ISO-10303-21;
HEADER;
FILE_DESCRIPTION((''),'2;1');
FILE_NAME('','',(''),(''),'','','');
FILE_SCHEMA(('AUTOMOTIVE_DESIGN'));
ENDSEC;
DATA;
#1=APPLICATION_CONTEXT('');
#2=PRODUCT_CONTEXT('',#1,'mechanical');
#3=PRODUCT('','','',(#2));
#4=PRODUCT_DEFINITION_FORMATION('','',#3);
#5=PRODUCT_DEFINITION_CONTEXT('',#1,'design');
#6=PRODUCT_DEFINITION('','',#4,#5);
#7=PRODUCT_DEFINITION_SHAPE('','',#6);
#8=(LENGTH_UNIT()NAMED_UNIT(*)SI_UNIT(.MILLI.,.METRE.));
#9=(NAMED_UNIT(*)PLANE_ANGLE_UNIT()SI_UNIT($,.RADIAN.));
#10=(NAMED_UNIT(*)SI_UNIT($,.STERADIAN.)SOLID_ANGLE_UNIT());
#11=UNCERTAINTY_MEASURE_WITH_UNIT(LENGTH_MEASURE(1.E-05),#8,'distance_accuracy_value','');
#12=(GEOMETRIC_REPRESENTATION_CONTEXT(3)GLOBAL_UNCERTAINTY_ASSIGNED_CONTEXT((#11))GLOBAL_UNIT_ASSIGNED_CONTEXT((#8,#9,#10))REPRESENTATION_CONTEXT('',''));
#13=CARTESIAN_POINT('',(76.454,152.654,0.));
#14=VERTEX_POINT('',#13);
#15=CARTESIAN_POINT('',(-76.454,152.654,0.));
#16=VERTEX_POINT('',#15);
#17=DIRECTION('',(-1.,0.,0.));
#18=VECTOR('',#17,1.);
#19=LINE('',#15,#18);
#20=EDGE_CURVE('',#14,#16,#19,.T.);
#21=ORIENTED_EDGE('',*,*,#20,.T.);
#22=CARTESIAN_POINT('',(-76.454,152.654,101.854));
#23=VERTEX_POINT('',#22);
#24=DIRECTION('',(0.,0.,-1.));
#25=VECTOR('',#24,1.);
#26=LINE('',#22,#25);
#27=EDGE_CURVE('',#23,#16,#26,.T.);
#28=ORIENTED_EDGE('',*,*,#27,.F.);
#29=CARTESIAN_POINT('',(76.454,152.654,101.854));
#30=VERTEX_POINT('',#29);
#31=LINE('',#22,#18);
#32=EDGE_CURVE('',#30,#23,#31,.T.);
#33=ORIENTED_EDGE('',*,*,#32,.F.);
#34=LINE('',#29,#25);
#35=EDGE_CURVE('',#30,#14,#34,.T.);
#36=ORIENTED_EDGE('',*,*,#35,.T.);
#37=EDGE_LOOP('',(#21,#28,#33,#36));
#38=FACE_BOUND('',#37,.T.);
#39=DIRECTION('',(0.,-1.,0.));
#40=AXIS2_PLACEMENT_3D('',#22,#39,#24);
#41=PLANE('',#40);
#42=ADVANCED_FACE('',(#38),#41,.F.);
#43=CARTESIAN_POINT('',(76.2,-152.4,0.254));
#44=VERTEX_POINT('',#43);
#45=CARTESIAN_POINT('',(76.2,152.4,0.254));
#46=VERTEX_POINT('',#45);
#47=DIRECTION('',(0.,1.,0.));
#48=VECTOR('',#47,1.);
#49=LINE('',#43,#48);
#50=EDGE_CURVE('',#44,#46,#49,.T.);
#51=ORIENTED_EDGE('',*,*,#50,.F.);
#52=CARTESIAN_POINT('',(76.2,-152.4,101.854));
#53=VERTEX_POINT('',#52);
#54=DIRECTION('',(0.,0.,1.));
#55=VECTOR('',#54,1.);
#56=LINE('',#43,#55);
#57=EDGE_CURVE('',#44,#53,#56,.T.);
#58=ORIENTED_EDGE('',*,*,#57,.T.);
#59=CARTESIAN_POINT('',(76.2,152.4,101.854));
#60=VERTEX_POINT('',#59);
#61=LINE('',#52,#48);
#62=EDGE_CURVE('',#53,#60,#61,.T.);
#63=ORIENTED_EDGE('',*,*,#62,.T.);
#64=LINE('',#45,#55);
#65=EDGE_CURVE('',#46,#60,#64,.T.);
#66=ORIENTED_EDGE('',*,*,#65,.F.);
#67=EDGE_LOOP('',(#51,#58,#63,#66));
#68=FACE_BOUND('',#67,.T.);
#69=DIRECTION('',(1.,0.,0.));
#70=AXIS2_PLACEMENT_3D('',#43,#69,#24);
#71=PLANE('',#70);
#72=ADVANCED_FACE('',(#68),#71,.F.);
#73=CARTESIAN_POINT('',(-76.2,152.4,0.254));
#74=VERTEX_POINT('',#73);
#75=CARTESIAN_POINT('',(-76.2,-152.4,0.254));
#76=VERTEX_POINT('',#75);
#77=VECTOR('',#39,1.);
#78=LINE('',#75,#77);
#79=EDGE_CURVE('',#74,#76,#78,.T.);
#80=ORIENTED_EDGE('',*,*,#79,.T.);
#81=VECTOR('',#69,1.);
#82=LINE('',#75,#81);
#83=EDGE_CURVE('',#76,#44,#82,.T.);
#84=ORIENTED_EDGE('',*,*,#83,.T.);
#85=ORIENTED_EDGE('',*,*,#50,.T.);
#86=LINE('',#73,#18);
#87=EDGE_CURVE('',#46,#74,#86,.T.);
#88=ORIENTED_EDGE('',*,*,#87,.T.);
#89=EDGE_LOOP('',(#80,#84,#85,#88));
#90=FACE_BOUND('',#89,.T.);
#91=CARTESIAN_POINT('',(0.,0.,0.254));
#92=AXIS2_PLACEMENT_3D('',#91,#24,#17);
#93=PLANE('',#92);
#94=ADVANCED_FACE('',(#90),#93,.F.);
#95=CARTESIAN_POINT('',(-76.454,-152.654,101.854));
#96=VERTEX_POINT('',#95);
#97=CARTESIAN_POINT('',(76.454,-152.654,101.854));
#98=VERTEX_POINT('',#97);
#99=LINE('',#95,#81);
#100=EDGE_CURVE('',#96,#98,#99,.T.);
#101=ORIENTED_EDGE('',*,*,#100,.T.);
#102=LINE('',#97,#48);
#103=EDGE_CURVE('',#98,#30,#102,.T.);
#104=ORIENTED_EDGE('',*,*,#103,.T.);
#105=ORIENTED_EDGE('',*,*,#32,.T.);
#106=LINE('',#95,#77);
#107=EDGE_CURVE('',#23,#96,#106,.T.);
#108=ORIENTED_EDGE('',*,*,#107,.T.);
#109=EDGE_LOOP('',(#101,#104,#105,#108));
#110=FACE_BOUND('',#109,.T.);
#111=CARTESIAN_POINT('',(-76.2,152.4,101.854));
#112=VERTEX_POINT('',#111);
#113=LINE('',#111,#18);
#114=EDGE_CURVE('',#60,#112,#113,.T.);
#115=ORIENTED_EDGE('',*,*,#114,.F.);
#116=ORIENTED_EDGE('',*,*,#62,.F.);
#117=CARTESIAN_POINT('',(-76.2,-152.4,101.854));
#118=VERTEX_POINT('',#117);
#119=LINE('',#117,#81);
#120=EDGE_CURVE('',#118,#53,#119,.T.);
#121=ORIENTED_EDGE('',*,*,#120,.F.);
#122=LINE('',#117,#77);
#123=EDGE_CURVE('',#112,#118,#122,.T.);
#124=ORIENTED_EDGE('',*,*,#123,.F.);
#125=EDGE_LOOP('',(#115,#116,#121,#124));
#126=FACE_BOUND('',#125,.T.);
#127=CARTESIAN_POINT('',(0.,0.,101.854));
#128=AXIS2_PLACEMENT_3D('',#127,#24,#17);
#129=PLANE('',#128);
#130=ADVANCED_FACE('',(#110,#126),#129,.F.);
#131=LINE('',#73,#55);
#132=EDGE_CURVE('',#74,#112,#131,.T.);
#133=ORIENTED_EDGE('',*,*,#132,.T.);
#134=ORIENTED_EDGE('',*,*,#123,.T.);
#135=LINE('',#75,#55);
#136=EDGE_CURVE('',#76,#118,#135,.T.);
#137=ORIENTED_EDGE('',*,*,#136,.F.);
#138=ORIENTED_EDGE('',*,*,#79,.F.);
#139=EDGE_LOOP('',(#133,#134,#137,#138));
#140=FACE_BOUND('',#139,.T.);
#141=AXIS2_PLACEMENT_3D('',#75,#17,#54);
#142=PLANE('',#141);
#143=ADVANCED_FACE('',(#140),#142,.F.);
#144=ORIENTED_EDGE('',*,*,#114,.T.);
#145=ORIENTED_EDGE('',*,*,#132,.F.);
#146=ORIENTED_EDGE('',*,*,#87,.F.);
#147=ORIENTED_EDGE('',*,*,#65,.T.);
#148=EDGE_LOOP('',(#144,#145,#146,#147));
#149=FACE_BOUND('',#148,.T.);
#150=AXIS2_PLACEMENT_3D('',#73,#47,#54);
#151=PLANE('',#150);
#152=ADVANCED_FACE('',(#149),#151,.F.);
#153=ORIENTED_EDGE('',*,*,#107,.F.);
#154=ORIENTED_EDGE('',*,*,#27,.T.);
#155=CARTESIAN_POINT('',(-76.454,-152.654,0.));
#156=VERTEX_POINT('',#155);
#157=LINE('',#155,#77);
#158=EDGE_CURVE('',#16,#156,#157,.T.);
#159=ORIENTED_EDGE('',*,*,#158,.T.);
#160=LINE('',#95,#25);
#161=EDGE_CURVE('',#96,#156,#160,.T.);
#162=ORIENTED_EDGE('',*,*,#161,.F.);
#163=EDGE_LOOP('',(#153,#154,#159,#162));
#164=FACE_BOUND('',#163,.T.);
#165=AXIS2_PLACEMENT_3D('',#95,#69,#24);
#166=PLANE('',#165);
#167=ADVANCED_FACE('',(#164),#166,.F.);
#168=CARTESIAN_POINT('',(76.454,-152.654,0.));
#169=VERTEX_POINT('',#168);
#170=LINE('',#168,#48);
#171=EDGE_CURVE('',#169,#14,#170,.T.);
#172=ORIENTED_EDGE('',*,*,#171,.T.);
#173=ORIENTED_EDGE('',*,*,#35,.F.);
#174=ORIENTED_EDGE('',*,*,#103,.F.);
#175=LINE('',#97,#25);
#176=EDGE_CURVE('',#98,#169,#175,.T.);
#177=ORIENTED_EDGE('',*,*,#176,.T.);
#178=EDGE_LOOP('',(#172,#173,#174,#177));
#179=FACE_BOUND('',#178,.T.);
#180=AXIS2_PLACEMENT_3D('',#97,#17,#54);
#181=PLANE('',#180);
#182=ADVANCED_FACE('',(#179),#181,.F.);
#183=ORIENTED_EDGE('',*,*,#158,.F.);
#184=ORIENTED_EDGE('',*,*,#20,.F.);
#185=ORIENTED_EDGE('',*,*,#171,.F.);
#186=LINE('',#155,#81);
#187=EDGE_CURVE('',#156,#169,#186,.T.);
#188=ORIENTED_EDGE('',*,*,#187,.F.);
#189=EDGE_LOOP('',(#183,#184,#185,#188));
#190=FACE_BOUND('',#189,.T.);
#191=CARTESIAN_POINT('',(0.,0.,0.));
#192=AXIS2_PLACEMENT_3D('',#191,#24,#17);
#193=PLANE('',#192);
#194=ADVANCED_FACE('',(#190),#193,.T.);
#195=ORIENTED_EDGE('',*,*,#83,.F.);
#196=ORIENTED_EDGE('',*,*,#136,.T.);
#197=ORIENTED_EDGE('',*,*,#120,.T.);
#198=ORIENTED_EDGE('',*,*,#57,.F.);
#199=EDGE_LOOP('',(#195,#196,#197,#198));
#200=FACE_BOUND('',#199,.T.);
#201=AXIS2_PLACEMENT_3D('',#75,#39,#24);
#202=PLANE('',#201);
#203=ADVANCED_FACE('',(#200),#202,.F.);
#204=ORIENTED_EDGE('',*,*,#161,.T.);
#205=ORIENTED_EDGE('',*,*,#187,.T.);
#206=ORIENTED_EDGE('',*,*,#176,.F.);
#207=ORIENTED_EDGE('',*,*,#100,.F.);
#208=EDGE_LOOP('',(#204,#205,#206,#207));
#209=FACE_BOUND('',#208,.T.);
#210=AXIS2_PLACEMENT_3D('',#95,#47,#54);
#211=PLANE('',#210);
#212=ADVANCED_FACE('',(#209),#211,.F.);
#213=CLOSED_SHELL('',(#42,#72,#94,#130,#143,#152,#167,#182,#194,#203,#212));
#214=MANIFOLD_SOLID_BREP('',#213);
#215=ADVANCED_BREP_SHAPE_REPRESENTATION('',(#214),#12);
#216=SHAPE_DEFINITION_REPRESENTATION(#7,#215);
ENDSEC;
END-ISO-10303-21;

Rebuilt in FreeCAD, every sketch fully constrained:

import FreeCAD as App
import Part
import Sketcher
Q = App.Units.Quantity


def add_polygon(sketch, points):
    """Adds a closed chain of lines whose ends are joined by coincident constraints."""
    first, n = sketch.GeometryCount, len(points)
    for a, b in zip(points, points[1:] + points[:1]):
        sketch.addGeometry(Part.LineSegment(App.Vector(*a, 0), App.Vector(*b, 0)), False)
    for i in range(n):
        sketch.addConstraint(Sketcher.Constraint("Coincident", first + i, 2, first + (i + 1) % n, 1))

doc = App.newDocument("Part")
body = doc.addObject("PartDesign::Body", "Body")

# Sketch on XY plane
sketch1 = body.newObject("Sketcher::SketchObject", "Sketch")
sketch1.AttachmentSupport = (doc.getObject("XY_Plane"), [""])
sketch1.MapMode = "FlatFace"
add_polygon(sketch1, [(-76.454, 152.654), (-76.454, -152.654), (76.454, -152.654), (76.454, 152.654)])  # lines 0-3
sketch1.addConstraint([
    Sketcher.Constraint("Vertical", 0),
    Sketcher.Constraint("Horizontal", 1),
    Sketcher.Constraint("Vertical", 2),
    Sketcher.Constraint("Horizontal", 3),
    Sketcher.Constraint("Symmetric", 0, 2, 2, 2, -1, 1),
    Sketcher.Constraint("DistanceX", 1, 1, 1, 2, Q("6.02 in")),
    Sketcher.Constraint("DistanceY", 0, 2, 0, 1, Q("12.02 in")),
])
pad1 = body.newObject("PartDesign::Pad", "Pad")
pad1.Profile = sketch1
pad1.Length = Q("4.01 in")

# Sketch on XY plane
sketch2 = body.newObject("Sketcher::SketchObject", "Sketch001")
sketch2.AttachmentSupport = (doc.getObject("XY_Plane"), [""])
sketch2.MapMode = "FlatFace"
sketch2.AttachmentOffset = App.Placement(App.Vector(0, 0, 4.01 * 25.4), App.Rotation())
add_polygon(sketch2, [(-76.2, 152.4), (-76.2, -152.4), (76.2, -152.4), (76.2, 152.4)])  # lines 0-3
sketch2.addConstraint([
    Sketcher.Constraint("Vertical", 0),
    Sketcher.Constraint("Horizontal", 1),
    Sketcher.Constraint("Vertical", 2),
    Sketcher.Constraint("Horizontal", 3),
    Sketcher.Constraint("Symmetric", 0, 2, 2, 2, -1, 1),
    Sketcher.Constraint("DistanceX", 1, 1, 1, 2, Q("6 in")),
    Sketcher.Constraint("DistanceY", 0, 2, 0, 1, Q("12 in")),
])
pocket1 = body.newObject("PartDesign::Pocket", "Pocket")
pocket1.Profile = sketch2
pocket1.Length = Q("4 in")

doc.recompute()
